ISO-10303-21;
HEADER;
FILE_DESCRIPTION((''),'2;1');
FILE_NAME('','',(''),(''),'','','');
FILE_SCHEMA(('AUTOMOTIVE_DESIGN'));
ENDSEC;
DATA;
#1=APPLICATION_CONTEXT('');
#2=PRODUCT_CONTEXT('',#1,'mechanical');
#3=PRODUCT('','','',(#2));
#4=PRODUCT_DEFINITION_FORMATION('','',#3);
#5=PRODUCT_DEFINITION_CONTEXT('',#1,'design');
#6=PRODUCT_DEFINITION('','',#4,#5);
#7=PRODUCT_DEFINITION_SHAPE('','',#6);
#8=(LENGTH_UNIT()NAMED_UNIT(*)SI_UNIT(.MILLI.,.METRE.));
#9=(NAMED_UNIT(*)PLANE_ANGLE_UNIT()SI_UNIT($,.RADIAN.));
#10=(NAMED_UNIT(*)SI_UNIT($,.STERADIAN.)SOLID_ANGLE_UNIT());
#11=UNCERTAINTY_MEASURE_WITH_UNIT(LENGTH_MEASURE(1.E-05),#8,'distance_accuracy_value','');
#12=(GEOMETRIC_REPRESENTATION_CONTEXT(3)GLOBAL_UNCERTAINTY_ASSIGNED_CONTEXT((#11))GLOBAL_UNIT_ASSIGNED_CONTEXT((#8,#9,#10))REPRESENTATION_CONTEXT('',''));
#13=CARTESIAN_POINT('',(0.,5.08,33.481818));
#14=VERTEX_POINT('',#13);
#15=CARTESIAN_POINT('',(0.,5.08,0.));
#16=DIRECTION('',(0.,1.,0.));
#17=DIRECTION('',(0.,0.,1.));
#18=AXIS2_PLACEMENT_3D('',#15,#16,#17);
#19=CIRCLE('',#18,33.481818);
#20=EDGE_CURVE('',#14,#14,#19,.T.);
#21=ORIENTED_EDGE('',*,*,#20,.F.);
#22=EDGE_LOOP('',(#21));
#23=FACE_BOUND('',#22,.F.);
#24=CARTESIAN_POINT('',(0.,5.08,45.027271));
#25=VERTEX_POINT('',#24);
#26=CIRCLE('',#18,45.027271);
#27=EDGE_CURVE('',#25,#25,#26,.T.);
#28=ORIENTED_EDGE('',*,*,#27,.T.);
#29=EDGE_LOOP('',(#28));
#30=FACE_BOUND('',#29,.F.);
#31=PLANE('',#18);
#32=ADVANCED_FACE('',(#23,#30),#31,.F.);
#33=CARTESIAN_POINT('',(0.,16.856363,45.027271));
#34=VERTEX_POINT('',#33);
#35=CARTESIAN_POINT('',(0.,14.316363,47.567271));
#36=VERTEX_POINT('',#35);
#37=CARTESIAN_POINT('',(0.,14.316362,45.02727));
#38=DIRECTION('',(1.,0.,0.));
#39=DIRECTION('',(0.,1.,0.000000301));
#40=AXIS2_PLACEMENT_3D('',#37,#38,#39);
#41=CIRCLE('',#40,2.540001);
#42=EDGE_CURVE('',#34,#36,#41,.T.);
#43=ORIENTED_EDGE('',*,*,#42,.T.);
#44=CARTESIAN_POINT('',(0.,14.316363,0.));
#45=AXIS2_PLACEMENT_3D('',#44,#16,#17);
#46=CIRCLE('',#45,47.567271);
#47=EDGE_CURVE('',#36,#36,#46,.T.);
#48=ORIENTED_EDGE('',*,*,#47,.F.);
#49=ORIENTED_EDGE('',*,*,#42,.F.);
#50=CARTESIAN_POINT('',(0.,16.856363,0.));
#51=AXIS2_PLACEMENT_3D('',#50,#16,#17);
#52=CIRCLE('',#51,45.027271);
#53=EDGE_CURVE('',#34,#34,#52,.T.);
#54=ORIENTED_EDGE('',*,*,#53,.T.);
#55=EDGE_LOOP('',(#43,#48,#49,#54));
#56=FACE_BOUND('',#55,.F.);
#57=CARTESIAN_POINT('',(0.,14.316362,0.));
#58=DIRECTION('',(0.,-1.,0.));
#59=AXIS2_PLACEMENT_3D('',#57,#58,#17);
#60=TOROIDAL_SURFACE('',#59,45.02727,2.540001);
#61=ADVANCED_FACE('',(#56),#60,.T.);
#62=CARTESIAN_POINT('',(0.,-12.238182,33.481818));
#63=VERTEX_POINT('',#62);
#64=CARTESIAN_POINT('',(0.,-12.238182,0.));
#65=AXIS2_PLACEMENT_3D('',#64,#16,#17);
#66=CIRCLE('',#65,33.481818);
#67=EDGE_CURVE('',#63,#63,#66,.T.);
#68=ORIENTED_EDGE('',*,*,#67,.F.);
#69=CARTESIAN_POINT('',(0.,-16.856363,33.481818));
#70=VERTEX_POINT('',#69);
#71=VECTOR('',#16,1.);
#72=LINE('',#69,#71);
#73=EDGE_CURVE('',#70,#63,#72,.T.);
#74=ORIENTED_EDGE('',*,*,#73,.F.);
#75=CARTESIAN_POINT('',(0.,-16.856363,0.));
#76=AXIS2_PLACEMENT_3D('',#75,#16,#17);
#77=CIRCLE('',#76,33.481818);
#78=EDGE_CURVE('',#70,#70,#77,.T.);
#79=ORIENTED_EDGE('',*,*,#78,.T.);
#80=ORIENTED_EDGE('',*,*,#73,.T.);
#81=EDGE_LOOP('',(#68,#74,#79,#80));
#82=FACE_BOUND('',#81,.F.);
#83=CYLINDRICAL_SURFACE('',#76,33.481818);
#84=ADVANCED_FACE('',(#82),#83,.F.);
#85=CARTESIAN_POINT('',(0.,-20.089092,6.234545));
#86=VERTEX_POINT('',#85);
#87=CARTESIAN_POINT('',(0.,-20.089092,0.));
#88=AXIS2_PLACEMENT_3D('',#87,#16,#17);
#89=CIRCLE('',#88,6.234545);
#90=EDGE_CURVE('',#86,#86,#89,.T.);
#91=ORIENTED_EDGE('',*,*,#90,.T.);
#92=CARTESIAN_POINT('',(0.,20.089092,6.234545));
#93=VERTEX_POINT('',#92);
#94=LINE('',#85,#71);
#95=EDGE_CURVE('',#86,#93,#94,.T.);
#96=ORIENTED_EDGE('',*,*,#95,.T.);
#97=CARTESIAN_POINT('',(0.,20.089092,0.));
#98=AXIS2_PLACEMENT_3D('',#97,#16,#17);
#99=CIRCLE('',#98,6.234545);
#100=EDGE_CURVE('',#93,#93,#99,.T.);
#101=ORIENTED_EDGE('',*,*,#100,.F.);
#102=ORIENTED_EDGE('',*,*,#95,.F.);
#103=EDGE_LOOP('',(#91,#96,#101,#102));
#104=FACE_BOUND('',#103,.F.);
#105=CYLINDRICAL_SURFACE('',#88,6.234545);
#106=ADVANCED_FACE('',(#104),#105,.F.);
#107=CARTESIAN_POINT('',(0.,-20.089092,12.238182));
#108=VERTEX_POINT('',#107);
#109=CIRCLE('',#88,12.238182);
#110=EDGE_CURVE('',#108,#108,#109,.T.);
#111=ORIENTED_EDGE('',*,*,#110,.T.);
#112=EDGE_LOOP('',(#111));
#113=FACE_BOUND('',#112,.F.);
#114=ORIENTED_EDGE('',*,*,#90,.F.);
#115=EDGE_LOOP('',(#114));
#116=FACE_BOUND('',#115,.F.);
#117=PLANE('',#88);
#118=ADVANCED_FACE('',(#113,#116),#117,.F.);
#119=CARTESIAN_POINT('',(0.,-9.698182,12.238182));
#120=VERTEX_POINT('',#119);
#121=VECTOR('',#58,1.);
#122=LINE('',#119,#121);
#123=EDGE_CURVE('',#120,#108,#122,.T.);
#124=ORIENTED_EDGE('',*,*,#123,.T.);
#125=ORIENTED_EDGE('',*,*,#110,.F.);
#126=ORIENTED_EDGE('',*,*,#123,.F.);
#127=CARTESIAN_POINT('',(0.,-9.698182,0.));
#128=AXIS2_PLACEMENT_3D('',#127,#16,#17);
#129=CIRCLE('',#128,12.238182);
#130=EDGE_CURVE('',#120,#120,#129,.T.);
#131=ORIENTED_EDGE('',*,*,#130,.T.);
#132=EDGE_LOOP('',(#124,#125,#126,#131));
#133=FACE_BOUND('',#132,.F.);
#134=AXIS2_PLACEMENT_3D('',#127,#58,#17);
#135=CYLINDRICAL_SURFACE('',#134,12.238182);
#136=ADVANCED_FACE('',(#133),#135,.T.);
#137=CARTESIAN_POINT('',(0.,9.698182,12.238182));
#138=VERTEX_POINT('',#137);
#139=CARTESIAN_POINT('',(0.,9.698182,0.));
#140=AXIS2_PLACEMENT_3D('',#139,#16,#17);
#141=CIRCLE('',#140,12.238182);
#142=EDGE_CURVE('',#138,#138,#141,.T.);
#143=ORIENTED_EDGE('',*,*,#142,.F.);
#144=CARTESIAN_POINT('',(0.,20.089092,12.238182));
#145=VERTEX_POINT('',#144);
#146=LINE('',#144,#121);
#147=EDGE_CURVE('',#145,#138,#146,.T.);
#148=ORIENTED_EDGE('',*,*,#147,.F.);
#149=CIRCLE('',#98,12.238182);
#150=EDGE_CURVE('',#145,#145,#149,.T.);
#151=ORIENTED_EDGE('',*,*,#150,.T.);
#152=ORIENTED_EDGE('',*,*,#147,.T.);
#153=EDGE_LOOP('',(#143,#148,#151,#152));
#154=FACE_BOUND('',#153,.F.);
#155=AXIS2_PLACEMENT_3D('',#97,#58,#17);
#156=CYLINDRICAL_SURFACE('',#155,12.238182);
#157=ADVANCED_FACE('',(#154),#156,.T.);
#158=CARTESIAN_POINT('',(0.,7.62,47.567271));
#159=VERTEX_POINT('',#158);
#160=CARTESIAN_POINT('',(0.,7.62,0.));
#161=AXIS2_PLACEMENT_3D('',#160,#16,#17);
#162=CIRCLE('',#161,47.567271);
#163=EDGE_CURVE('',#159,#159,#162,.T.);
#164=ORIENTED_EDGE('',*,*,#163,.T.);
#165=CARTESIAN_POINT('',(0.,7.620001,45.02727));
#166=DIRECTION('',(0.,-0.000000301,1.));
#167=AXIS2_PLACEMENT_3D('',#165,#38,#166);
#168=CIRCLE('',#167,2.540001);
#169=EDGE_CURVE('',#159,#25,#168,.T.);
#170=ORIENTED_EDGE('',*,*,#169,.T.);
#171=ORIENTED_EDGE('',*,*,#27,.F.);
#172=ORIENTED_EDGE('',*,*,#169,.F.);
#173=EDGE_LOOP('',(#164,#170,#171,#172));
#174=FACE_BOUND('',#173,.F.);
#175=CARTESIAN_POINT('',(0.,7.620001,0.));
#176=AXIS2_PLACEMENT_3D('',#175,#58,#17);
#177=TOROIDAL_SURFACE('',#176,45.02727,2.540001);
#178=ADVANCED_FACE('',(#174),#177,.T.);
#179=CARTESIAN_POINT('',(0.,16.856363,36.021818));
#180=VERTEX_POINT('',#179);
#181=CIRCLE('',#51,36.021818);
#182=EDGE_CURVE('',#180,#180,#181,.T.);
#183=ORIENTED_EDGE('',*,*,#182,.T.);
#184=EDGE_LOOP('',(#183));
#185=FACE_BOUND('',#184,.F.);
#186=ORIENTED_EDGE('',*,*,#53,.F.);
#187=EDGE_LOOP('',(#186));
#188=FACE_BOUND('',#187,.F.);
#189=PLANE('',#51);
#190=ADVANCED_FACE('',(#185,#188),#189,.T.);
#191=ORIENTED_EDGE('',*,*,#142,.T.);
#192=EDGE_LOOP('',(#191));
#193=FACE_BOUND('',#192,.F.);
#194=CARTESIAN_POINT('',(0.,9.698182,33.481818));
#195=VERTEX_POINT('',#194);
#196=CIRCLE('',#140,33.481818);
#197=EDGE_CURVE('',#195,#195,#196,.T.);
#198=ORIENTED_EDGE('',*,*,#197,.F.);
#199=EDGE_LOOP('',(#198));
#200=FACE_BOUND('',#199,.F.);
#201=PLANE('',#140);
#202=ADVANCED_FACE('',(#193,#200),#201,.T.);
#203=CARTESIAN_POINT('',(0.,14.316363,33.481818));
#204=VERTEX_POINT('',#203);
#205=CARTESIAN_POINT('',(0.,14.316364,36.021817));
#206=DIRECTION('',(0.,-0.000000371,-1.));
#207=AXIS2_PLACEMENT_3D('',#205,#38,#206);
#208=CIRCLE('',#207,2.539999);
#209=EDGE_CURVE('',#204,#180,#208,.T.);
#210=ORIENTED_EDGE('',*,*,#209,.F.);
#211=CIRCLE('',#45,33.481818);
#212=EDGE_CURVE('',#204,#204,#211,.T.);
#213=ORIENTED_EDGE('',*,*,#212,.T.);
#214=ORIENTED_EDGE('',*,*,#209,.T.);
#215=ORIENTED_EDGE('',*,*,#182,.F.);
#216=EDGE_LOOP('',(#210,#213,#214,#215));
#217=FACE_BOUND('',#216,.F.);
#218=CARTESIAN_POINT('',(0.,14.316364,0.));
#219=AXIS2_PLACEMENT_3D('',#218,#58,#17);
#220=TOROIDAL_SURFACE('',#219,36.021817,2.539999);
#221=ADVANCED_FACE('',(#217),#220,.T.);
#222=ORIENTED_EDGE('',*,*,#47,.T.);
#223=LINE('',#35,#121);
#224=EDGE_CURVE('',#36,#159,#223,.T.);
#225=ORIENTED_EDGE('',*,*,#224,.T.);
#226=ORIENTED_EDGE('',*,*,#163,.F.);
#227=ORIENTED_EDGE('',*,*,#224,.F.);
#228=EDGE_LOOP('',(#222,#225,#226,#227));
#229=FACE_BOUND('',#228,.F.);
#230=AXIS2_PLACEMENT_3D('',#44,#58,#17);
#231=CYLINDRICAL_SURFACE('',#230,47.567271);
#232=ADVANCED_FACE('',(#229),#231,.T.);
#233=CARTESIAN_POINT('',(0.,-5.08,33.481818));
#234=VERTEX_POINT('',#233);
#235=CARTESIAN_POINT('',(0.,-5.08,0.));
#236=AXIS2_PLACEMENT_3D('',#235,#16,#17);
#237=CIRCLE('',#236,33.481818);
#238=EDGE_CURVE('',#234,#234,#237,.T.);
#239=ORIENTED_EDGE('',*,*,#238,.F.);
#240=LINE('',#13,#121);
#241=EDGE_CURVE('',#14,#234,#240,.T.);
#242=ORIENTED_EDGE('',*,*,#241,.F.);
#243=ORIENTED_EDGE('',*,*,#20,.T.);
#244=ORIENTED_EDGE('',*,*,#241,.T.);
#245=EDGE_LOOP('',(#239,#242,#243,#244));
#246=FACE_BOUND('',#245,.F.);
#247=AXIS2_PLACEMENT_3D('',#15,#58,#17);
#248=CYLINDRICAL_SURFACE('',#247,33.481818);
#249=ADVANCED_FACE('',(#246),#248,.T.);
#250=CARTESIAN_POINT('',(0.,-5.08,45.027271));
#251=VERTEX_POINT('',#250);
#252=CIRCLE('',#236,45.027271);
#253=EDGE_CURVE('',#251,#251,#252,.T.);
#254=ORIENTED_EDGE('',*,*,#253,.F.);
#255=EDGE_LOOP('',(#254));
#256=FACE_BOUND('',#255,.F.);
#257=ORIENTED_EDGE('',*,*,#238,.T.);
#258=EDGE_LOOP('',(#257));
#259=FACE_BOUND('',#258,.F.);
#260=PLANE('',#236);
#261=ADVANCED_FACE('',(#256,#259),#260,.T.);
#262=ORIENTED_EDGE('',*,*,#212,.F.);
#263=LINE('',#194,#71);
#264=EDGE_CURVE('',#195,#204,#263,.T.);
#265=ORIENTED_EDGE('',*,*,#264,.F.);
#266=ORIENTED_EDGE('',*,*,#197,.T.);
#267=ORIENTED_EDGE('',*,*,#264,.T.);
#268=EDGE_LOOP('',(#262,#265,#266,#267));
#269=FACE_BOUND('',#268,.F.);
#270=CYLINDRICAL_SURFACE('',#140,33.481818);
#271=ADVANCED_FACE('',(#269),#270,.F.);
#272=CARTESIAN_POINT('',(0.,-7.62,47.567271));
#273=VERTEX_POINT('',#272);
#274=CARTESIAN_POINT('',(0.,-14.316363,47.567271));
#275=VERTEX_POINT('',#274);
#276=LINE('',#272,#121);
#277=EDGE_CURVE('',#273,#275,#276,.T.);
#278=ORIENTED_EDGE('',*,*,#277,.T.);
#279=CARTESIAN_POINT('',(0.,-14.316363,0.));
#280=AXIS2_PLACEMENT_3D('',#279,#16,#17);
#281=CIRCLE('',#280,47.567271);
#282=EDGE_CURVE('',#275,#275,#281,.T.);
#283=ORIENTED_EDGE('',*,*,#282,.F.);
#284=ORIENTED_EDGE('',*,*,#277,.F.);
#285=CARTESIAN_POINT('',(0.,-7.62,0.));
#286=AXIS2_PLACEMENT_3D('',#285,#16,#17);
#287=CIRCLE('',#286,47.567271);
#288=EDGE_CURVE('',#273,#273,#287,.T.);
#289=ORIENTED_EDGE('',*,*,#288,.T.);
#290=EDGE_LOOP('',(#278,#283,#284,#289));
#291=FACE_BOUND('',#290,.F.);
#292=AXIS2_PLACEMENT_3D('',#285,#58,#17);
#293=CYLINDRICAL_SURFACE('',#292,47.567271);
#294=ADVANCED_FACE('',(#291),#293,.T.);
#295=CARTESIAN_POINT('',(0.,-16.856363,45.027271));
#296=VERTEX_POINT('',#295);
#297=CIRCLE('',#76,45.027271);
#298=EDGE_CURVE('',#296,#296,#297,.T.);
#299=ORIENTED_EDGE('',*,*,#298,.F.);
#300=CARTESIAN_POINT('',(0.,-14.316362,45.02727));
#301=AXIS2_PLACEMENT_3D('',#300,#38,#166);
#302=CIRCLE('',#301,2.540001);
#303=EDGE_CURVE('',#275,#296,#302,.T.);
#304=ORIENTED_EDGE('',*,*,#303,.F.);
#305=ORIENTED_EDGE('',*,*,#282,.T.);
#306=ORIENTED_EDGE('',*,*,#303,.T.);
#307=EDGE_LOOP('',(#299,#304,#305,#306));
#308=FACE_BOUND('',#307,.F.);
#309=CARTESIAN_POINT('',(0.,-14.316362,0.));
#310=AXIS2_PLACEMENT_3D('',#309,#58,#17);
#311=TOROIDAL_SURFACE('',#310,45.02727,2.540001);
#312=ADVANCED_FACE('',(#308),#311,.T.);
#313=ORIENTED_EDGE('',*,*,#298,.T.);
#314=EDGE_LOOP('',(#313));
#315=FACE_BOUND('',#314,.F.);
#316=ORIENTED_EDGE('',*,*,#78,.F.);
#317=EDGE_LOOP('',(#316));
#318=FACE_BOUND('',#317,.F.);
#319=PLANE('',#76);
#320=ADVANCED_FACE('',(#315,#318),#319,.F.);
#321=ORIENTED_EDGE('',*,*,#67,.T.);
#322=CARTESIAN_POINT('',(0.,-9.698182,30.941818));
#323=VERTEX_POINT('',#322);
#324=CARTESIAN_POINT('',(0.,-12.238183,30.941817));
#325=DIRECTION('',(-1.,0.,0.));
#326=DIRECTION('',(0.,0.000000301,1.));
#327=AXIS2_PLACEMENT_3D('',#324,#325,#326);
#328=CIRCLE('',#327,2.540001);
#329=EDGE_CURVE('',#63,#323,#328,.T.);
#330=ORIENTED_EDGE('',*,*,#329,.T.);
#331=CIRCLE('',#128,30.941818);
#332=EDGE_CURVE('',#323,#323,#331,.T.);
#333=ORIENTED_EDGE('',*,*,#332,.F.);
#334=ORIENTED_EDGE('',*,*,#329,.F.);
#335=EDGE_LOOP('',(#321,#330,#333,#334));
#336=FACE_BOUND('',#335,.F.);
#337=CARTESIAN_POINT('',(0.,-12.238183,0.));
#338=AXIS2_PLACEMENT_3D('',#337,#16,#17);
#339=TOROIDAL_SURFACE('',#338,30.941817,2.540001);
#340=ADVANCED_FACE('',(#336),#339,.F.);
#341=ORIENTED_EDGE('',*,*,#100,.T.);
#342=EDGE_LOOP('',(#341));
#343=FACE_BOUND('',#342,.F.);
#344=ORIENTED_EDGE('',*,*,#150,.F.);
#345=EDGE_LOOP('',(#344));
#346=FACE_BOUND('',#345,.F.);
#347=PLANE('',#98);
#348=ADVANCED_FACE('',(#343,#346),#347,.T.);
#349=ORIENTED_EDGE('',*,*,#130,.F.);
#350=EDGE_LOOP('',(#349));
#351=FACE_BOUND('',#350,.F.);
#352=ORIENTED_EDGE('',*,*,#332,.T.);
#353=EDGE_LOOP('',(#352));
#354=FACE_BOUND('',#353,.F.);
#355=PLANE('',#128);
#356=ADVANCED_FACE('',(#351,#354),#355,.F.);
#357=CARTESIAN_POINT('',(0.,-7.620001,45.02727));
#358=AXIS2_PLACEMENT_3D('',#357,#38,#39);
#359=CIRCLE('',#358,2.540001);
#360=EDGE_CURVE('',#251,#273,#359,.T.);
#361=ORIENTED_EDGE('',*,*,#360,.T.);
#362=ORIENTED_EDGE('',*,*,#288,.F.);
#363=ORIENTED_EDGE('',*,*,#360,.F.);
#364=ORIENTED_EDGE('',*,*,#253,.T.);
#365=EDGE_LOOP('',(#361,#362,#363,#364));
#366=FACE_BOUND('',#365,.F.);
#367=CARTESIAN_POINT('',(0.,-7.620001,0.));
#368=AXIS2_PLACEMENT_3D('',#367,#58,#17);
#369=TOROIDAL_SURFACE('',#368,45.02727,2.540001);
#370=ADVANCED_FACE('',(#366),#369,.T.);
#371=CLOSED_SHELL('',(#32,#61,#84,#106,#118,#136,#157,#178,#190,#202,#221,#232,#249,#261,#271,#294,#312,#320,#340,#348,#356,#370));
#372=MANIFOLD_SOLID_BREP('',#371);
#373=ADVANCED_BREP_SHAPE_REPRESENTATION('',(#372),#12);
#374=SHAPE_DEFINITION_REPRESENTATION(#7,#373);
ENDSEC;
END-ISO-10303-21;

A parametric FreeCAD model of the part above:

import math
import FreeCAD as App
import Part
import Sketcher
Q = App.Units.Quantity

doc = App.newDocument("Part")
body = doc.addObject("PartDesign::Body", "Body")

# Sketch on YZ plane
sketch1 = doc.addObject("Sketcher::SketchObject", "Sketch")
body.addObject(sketch1)
sketch1.AttachmentSupport = (doc.YZ_Plane, [""])
sketch1.MapMode = "FlatFace"
sketch1.addGeometry([
    Part.LineSegment(App.Vector(-20.1, 6.2, 0), App.Vector(20.1, 6.2, 0)),  # 0
    Part.LineSegment(App.Vector(20.1, 6.2, 0), App.Vector(20.1, 12.2, 0)),  # 1
    Part.LineSegment(App.Vector(20.1, 12.2, 0), App.Vector(9.7, 12.2, 0)),  # 2
    Part.LineSegment(App.Vector(9.7, 12.2, 0), App.Vector(9.7, 33.5, 0)),  # 3
    Part.LineSegment(App.Vector(9.7, 33.5, 0), App.Vector(14.3, 33.5, 0)),  # 4
    Part.ArcOfCircle(Part.Circle(App.Vector(14.3, 36, 0), App.Vector(0, 0, 1), 2.5), math.radians(-90), math.radians(0)),  # 5
    Part.LineSegment(App.Vector(16.9, 36, 0), App.Vector(16.9, 45, 0)),  # 6
    Part.ArcOfCircle(Part.Circle(App.Vector(14.3, 45, 0), App.Vector(0, 0, 1), 2.5), math.radians(0), math.radians(90)),  # 7
    Part.LineSegment(App.Vector(14.3, 47.6, 0), App.Vector(7.6, 47.6, 0)),  # 8
    Part.ArcOfCircle(Part.Circle(App.Vector(7.6, 45, 0), App.Vector(0, 0, 1), 2.5), math.radians(90), math.radians(180)),  # 9
    Part.LineSegment(App.Vector(5.1, 45, 0), App.Vector(5.1, 33.5, 0)),  # 10
    Part.LineSegment(App.Vector(5.1, 33.5, 0), App.Vector(-5.1, 33.5, 0)),  # 11
    Part.LineSegment(App.Vector(-5.1, 33.5, 0), App.Vector(-5.1, 45, 0)),  # 12
    Part.ArcOfCircle(Part.Circle(App.Vector(-7.6, 45, 0), App.Vector(0, 0, 1), 2.5), math.radians(0), math.radians(90)),  # 13
    Part.LineSegment(App.Vector(-7.6, 47.6, 0), App.Vector(-14.3, 47.6, 0)),  # 14
    Part.ArcOfCircle(Part.Circle(App.Vector(-14.3, 45, 0), App.Vector(0, 0, 1), 2.5), math.radians(90), math.radians(180)),  # 15
    Part.LineSegment(App.Vector(-16.9, 45, 0), App.Vector(-16.9, 33.5, 0)),  # 16
    Part.LineSegment(App.Vector(-16.9, 33.5, 0), App.Vector(-12.2, 33.5, 0)),  # 17
    Part.ArcOfCircle(Part.Circle(App.Vector(-12.2, 30.9, 0), App.Vector(0, 0, 1), 2.5), math.radians(0), math.radians(90)),  # 18
    Part.LineSegment(App.Vector(-9.7, 30.9, 0), App.Vector(-9.7, 12.2, 0)),  # 19
    Part.LineSegment(App.Vector(-9.7, 12.2, 0), App.Vector(-20.1, 12.2, 0)),  # 20
    Part.LineSegment(App.Vector(-20.1, 12.2, 0), App.Vector(-20.1, 6.2, 0)),  # 21
], False)
sketch1.addConstraint([
    Sketcher.Constraint("Coincident", 0, 2, 1, 1),
    Sketcher.Constraint("Coincident", 1, 2, 2, 1),
    Sketcher.Constraint("Coincident", 2, 2, 3, 1),
    Sketcher.Constraint("Coincident", 3, 2, 4, 1),
    Sketcher.Constraint("Tangent", 4, 2, 5, 1),
    Sketcher.Constraint("Tangent", 5, 2, 6, 1),
    Sketcher.Constraint("Tangent", 6, 2, 7, 1),
    Sketcher.Constraint("Tangent", 7, 2, 8, 1),
    Sketcher.Constraint("Tangent", 8, 2, 9, 1),
    Sketcher.Constraint("Tangent", 9, 2, 10, 1),
    Sketcher.Constraint("Coincident", 10, 2, 11, 1),
    Sketcher.Constraint("Coincident", 11, 2, 12, 1),
    Sketcher.Constraint("Tangent", 12, 2, 13, 1),
    Sketcher.Constraint("Tangent", 13, 2, 14, 1),
    Sketcher.Constraint("Tangent", 14, 2, 15, 1),
    Sketcher.Constraint("Tangent", 15, 2, 16, 1),
    Sketcher.Constraint("Coincident", 16, 2, 17, 1),
    Sketcher.Constraint("Tangent", 17, 2, 18, 2),
    Sketcher.Constraint("Tangent", 18, 1, 19, 1),
    Sketcher.Constraint("Coincident", 19, 2, 20, 1),
    Sketcher.Constraint("Coincident", 20, 2, 21, 1),
    Sketcher.Constraint("Coincident", 21, 2, 0, 1),
    Sketcher.Constraint("Horizontal", 0),
    Sketcher.Constraint("Vertical", 1),
    Sketcher.Constraint("Horizontal", 2),
    Sketcher.Constraint("Vertical", 3),
    Sketcher.Constraint("Horizontal", 4),
    Sketcher.Constraint("Vertical", 6),
    Sketcher.Constraint("Horizontal", 8),
    Sketcher.Constraint("Vertical", 10),
    Sketcher.Constraint("Horizontal", 11),
    Sketcher.Constraint("Vertical", 12),
    Sketcher.Constraint("Horizontal", 14),
    Sketcher.Constraint("Vertical", 16),
    Sketcher.Constraint("Horizontal", 17),
    Sketcher.Constraint("Vertical", 19),
    Sketcher.Constraint("Horizontal", 20),
    Sketcher.Constraint("Vertical", 21),
    Sketcher.Constraint("Equal", 5, 7),
    Sketcher.Constraint("Equal", 7, 9),
    Sketcher.Constraint("Equal", 9, 13),
    Sketcher.Constraint("Equal", 13, 15),
    Sketcher.Constraint("Equal", 15, 18),
    Sketcher.Constraint("Symmetric", 9, 3, 13, 3, -2),
    Sketcher.Constraint("Symmetric", 2, 2, 19, 2, -2),
    Sketcher.Constraint("Horizontal", 4, 2, 10, 2),
    Sketcher.Constraint("Horizontal", 11, 2, 16, 2),
    Sketcher.Constraint("Equal", 8, 14),
    Sketcher.Constraint("Equal", 2, 20),
    Sketcher.Constraint("Radius", 5, Q("0.1 in")),
    Sketcher.Constraint("DistanceX", 11, 2, 11, 1, Q("0.4 in")),
    Sketcher.Constraint("DistanceX", 2, 2, 2, 1, 10.39091),
    Sketcher.Constraint("DistanceX", 4, 1, 4, 2, 4.618181),
    Sketcher.Constraint("DistanceX", 0, 1, 0, 2, 40.178184),
    Sketcher.Constraint("DistanceY", 1, 1, 1, 2, 6.003637),
    Sketcher.Constraint("DistanceY", 3, 1, 3, 2, 21.243636),
    Sketcher.Constraint("DistanceY", 6, 1, 6, 2, 9.005453),
    Sketcher.Constraint("DistanceY", -1, 1, 7, 3, 45.02727),
])
revolution = doc.addObject("PartDesign::Revolution", "Revolution")
body.addObject(revolution)
revolution.Profile = sketch1
revolution.ReferenceAxis = (sketch1, ["H_Axis"])
revolution.Angle = 360

doc.recompute()
